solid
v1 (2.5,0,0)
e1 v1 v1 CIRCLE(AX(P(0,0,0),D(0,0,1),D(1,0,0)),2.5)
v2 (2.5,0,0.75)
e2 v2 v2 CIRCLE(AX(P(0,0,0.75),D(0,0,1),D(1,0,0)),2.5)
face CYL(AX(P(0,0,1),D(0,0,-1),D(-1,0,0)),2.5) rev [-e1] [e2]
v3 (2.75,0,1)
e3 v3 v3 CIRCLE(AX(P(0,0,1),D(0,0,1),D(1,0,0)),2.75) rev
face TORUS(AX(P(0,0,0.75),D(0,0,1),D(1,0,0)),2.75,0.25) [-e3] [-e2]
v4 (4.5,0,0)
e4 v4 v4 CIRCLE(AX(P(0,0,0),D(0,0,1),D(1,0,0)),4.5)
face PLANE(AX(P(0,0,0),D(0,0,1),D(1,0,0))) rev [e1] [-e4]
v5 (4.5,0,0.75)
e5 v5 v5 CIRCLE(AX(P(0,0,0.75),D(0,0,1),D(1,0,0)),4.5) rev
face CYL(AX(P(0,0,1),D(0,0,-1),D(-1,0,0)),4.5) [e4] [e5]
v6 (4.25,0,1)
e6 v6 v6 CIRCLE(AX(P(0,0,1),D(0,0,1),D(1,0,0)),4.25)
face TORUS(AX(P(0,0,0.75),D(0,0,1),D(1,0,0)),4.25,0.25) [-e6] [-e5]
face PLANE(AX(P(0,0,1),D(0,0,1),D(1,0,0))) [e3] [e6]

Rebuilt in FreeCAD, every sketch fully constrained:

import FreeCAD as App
import Part
import Sketcher


def edges_at(feature, points):
    """Names of the edges that pass closest to the given points."""
    edges = feature.Shape.Edges
    near = lambda p: min(range(len(edges)), key=lambda i: edges[i].distToShape(Part.Vertex(*p))[0])
    return sorted({f"Edge{near(p) + 1}" for p in points})

doc = App.newDocument("Part")
body = doc.addObject("PartDesign::Body", "Body")

# Sketch on XY plane
sketch1 = body.newObject("Sketcher::SketchObject", "Sketch")
sketch1.AttachmentSupport = (doc.getObject("XY_Plane"), [""])
sketch1.MapMode = "FlatFace"
sketch1.addGeometry(Part.Circle(App.Vector(0, 0, 0), App.Vector(0, 0, 1), 4.5), False)
sketch1.addGeometry(Part.Circle(App.Vector(0, 0, 0), App.Vector(0, 0, 1), 2.5), False)
sketch1.addConstraint(Sketcher.Constraint("Coincident", 0, 3, -1, 1))
sketch1.addConstraint(Sketcher.Constraint("Coincident", 1, 3, -1, 1))
sketch1.addConstraint(Sketcher.Constraint("Diameter", 0, 9.0))
sketch1.addConstraint(Sketcher.Constraint("Diameter", 1, 5.0))
pad1 = body.newObject("PartDesign::Pad", "Pad")
pad1.Profile = sketch1
pad1.Length = 1
doc.recompute()

fillet = body.newObject("PartDesign::Fillet", "Fillet")
fillet.Base = (pad1, edges_at(pad1, [(-4.5, 0, 1), (-2.5, 0, 1)]))
fillet.Radius = 0.25

doc.recompute()
